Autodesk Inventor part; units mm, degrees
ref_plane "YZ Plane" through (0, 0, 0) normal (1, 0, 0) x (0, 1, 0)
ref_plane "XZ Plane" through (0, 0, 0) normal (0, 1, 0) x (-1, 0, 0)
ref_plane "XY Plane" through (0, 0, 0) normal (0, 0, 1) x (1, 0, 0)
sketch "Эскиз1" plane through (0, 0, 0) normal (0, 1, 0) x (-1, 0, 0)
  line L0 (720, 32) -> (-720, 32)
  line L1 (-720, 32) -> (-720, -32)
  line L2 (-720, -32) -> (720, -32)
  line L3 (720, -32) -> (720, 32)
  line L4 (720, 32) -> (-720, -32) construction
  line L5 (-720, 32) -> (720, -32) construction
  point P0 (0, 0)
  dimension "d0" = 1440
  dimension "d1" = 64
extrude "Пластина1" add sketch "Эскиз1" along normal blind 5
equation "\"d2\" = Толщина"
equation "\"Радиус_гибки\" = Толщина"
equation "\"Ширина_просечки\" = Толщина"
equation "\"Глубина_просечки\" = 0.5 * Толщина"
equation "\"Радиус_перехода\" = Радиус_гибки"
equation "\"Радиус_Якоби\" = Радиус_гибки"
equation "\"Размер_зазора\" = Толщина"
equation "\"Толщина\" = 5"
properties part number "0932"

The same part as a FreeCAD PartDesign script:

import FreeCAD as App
import Part
import Sketcher
from FreeCAD import Vector

doc = App.newDocument("Part")
body = doc.addObject("PartDesign::Body", "Body")

# Sketch on XZ plane
sketch1 = doc.addObject("Sketcher::SketchObject", "Sketch")
body.addObject(sketch1)
sketch1.AttachmentSupport = (doc.XZ_Plane, [""])
sketch1.MapMode = "FlatFace"
sketch1.addGeometry(Part.LineSegment(Vector(-720, -32, 0), Vector(-720, 32, 0)), False)
sketch1.addGeometry(Part.LineSegment(Vector(-720, 32, 0), Vector(720, 32, 0)), False)
sketch1.addGeometry(Part.LineSegment(Vector(720, 32, 0), Vector(720, -32, 0)), False)
sketch1.addGeometry(Part.LineSegment(Vector(720, -32, 0), Vector(-720, -32, 0)), False)
sketch1.addConstraint(Sketcher.Constraint("Coincident", 0, 2, 1, 1))
sketch1.addConstraint(Sketcher.Constraint("Coincident", 1, 2, 2, 1))
sketch1.addConstraint(Sketcher.Constraint("Coincident", 2, 2, 3, 1))
sketch1.addConstraint(Sketcher.Constraint("Coincident", 3, 2, 0, 1))
sketch1.addConstraint(Sketcher.Constraint("Vertical", 0))
sketch1.addConstraint(Sketcher.Constraint("Horizontal", 1))
sketch1.addConstraint(Sketcher.Constraint("Vertical", 2))
sketch1.addConstraint(Sketcher.Constraint("Horizontal", 3))
sketch1.addConstraint(Sketcher.Constraint("Symmetric", 0, 2, 2, 2, -1, 1))
sketch1.addConstraint(Sketcher.Constraint("DistanceX", 1, 1, 1, 2, 1440.0))
sketch1.addConstraint(Sketcher.Constraint("DistanceY", 0, 1, 0, 2, 64.0))
pad1 = doc.addObject("PartDesign::Pad", "Pad")
body.addObject(pad1)
pad1.Profile = sketch1
pad1.Length = 5
pad1.Reversed = True

doc.recompute()
